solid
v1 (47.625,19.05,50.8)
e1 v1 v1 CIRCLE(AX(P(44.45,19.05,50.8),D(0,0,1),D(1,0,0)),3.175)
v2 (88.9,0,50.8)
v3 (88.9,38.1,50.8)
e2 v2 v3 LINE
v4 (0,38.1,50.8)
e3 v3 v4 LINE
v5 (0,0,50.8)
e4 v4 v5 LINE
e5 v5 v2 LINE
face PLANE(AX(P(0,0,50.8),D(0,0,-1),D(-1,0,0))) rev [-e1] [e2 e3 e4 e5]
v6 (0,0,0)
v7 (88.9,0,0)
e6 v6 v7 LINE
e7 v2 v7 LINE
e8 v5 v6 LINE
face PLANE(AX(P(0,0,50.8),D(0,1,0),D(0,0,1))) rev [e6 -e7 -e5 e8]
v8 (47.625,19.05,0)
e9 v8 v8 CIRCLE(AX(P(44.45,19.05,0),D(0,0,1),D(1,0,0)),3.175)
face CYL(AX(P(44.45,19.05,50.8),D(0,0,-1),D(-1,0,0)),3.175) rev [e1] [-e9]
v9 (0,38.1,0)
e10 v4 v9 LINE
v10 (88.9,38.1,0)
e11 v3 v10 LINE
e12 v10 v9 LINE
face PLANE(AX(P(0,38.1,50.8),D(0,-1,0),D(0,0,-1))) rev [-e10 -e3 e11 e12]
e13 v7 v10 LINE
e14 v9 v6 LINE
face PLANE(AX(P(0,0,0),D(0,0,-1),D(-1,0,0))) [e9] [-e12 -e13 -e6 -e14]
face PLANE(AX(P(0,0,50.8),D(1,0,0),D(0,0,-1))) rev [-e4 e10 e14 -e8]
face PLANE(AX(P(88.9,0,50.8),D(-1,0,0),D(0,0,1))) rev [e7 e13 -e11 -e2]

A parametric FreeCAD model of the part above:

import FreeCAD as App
import Part
import Sketcher
Q = App.Units.Quantity

doc = App.newDocument("Part")
body = doc.addObject("PartDesign::Body", "Body")

sketch1 = body.newObject("Sketcher::SketchObject", "Sketch")
sketch1.AttachmentSupport = (doc.getObject("XY_Plane"), [""])
sketch1.MapMode = "FlatFace"
sketch1.addGeometry([
    Part.LineSegment(App.Vector(0, 38.1, 0), App.Vector(0, 0, 0)),
    Part.LineSegment(App.Vector(0, 0, 0), App.Vector(88.9, 0, 0)),
    Part.LineSegment(App.Vector(88.9, 0, 0), App.Vector(88.9, 38.1, 0)),
    Part.LineSegment(App.Vector(88.9, 38.1, 0), App.Vector(0, 38.1, 0)),
    Part.Circle(App.Vector(44.45, 19.05, 0), App.Vector(0, 0, 1), 3.175),
], False)
sketch1.addConstraint([
    Sketcher.Constraint("Coincident", 0, 2, 1, 1),
    Sketcher.Constraint("Coincident", 1, 2, 2, 1),
    Sketcher.Constraint("Coincident", 2, 2, 3, 1),
    Sketcher.Constraint("Coincident", 3, 2, 0, 1),
    Sketcher.Constraint("Vertical", 0),
    Sketcher.Constraint("Horizontal", 1),
    Sketcher.Constraint("Vertical", 2),
    Sketcher.Constraint("Horizontal", 3),
    Sketcher.Constraint("Coincident", 0, 2, -1, 1),
    Sketcher.Constraint("Diameter", 4, Q("0.25 in")),
    Sketcher.Constraint("DistanceX", 1, 1, 1, 2, Q("3.5 in")),
    Sketcher.Constraint("DistanceY", 0, 2, 0, 1, Q("1.5 in")),
    Sketcher.Constraint("DistanceX", -1, 1, 4, 3, Q("1.75 in")),
    Sketcher.Constraint("DistanceY", -1, 1, 4, 3, Q("0.75 in")),
])
pad1 = body.newObject("PartDesign::Pad", "Pad")
pad1.Profile = sketch1
pad1.Length = Q("2 in")

doc.recompute()
